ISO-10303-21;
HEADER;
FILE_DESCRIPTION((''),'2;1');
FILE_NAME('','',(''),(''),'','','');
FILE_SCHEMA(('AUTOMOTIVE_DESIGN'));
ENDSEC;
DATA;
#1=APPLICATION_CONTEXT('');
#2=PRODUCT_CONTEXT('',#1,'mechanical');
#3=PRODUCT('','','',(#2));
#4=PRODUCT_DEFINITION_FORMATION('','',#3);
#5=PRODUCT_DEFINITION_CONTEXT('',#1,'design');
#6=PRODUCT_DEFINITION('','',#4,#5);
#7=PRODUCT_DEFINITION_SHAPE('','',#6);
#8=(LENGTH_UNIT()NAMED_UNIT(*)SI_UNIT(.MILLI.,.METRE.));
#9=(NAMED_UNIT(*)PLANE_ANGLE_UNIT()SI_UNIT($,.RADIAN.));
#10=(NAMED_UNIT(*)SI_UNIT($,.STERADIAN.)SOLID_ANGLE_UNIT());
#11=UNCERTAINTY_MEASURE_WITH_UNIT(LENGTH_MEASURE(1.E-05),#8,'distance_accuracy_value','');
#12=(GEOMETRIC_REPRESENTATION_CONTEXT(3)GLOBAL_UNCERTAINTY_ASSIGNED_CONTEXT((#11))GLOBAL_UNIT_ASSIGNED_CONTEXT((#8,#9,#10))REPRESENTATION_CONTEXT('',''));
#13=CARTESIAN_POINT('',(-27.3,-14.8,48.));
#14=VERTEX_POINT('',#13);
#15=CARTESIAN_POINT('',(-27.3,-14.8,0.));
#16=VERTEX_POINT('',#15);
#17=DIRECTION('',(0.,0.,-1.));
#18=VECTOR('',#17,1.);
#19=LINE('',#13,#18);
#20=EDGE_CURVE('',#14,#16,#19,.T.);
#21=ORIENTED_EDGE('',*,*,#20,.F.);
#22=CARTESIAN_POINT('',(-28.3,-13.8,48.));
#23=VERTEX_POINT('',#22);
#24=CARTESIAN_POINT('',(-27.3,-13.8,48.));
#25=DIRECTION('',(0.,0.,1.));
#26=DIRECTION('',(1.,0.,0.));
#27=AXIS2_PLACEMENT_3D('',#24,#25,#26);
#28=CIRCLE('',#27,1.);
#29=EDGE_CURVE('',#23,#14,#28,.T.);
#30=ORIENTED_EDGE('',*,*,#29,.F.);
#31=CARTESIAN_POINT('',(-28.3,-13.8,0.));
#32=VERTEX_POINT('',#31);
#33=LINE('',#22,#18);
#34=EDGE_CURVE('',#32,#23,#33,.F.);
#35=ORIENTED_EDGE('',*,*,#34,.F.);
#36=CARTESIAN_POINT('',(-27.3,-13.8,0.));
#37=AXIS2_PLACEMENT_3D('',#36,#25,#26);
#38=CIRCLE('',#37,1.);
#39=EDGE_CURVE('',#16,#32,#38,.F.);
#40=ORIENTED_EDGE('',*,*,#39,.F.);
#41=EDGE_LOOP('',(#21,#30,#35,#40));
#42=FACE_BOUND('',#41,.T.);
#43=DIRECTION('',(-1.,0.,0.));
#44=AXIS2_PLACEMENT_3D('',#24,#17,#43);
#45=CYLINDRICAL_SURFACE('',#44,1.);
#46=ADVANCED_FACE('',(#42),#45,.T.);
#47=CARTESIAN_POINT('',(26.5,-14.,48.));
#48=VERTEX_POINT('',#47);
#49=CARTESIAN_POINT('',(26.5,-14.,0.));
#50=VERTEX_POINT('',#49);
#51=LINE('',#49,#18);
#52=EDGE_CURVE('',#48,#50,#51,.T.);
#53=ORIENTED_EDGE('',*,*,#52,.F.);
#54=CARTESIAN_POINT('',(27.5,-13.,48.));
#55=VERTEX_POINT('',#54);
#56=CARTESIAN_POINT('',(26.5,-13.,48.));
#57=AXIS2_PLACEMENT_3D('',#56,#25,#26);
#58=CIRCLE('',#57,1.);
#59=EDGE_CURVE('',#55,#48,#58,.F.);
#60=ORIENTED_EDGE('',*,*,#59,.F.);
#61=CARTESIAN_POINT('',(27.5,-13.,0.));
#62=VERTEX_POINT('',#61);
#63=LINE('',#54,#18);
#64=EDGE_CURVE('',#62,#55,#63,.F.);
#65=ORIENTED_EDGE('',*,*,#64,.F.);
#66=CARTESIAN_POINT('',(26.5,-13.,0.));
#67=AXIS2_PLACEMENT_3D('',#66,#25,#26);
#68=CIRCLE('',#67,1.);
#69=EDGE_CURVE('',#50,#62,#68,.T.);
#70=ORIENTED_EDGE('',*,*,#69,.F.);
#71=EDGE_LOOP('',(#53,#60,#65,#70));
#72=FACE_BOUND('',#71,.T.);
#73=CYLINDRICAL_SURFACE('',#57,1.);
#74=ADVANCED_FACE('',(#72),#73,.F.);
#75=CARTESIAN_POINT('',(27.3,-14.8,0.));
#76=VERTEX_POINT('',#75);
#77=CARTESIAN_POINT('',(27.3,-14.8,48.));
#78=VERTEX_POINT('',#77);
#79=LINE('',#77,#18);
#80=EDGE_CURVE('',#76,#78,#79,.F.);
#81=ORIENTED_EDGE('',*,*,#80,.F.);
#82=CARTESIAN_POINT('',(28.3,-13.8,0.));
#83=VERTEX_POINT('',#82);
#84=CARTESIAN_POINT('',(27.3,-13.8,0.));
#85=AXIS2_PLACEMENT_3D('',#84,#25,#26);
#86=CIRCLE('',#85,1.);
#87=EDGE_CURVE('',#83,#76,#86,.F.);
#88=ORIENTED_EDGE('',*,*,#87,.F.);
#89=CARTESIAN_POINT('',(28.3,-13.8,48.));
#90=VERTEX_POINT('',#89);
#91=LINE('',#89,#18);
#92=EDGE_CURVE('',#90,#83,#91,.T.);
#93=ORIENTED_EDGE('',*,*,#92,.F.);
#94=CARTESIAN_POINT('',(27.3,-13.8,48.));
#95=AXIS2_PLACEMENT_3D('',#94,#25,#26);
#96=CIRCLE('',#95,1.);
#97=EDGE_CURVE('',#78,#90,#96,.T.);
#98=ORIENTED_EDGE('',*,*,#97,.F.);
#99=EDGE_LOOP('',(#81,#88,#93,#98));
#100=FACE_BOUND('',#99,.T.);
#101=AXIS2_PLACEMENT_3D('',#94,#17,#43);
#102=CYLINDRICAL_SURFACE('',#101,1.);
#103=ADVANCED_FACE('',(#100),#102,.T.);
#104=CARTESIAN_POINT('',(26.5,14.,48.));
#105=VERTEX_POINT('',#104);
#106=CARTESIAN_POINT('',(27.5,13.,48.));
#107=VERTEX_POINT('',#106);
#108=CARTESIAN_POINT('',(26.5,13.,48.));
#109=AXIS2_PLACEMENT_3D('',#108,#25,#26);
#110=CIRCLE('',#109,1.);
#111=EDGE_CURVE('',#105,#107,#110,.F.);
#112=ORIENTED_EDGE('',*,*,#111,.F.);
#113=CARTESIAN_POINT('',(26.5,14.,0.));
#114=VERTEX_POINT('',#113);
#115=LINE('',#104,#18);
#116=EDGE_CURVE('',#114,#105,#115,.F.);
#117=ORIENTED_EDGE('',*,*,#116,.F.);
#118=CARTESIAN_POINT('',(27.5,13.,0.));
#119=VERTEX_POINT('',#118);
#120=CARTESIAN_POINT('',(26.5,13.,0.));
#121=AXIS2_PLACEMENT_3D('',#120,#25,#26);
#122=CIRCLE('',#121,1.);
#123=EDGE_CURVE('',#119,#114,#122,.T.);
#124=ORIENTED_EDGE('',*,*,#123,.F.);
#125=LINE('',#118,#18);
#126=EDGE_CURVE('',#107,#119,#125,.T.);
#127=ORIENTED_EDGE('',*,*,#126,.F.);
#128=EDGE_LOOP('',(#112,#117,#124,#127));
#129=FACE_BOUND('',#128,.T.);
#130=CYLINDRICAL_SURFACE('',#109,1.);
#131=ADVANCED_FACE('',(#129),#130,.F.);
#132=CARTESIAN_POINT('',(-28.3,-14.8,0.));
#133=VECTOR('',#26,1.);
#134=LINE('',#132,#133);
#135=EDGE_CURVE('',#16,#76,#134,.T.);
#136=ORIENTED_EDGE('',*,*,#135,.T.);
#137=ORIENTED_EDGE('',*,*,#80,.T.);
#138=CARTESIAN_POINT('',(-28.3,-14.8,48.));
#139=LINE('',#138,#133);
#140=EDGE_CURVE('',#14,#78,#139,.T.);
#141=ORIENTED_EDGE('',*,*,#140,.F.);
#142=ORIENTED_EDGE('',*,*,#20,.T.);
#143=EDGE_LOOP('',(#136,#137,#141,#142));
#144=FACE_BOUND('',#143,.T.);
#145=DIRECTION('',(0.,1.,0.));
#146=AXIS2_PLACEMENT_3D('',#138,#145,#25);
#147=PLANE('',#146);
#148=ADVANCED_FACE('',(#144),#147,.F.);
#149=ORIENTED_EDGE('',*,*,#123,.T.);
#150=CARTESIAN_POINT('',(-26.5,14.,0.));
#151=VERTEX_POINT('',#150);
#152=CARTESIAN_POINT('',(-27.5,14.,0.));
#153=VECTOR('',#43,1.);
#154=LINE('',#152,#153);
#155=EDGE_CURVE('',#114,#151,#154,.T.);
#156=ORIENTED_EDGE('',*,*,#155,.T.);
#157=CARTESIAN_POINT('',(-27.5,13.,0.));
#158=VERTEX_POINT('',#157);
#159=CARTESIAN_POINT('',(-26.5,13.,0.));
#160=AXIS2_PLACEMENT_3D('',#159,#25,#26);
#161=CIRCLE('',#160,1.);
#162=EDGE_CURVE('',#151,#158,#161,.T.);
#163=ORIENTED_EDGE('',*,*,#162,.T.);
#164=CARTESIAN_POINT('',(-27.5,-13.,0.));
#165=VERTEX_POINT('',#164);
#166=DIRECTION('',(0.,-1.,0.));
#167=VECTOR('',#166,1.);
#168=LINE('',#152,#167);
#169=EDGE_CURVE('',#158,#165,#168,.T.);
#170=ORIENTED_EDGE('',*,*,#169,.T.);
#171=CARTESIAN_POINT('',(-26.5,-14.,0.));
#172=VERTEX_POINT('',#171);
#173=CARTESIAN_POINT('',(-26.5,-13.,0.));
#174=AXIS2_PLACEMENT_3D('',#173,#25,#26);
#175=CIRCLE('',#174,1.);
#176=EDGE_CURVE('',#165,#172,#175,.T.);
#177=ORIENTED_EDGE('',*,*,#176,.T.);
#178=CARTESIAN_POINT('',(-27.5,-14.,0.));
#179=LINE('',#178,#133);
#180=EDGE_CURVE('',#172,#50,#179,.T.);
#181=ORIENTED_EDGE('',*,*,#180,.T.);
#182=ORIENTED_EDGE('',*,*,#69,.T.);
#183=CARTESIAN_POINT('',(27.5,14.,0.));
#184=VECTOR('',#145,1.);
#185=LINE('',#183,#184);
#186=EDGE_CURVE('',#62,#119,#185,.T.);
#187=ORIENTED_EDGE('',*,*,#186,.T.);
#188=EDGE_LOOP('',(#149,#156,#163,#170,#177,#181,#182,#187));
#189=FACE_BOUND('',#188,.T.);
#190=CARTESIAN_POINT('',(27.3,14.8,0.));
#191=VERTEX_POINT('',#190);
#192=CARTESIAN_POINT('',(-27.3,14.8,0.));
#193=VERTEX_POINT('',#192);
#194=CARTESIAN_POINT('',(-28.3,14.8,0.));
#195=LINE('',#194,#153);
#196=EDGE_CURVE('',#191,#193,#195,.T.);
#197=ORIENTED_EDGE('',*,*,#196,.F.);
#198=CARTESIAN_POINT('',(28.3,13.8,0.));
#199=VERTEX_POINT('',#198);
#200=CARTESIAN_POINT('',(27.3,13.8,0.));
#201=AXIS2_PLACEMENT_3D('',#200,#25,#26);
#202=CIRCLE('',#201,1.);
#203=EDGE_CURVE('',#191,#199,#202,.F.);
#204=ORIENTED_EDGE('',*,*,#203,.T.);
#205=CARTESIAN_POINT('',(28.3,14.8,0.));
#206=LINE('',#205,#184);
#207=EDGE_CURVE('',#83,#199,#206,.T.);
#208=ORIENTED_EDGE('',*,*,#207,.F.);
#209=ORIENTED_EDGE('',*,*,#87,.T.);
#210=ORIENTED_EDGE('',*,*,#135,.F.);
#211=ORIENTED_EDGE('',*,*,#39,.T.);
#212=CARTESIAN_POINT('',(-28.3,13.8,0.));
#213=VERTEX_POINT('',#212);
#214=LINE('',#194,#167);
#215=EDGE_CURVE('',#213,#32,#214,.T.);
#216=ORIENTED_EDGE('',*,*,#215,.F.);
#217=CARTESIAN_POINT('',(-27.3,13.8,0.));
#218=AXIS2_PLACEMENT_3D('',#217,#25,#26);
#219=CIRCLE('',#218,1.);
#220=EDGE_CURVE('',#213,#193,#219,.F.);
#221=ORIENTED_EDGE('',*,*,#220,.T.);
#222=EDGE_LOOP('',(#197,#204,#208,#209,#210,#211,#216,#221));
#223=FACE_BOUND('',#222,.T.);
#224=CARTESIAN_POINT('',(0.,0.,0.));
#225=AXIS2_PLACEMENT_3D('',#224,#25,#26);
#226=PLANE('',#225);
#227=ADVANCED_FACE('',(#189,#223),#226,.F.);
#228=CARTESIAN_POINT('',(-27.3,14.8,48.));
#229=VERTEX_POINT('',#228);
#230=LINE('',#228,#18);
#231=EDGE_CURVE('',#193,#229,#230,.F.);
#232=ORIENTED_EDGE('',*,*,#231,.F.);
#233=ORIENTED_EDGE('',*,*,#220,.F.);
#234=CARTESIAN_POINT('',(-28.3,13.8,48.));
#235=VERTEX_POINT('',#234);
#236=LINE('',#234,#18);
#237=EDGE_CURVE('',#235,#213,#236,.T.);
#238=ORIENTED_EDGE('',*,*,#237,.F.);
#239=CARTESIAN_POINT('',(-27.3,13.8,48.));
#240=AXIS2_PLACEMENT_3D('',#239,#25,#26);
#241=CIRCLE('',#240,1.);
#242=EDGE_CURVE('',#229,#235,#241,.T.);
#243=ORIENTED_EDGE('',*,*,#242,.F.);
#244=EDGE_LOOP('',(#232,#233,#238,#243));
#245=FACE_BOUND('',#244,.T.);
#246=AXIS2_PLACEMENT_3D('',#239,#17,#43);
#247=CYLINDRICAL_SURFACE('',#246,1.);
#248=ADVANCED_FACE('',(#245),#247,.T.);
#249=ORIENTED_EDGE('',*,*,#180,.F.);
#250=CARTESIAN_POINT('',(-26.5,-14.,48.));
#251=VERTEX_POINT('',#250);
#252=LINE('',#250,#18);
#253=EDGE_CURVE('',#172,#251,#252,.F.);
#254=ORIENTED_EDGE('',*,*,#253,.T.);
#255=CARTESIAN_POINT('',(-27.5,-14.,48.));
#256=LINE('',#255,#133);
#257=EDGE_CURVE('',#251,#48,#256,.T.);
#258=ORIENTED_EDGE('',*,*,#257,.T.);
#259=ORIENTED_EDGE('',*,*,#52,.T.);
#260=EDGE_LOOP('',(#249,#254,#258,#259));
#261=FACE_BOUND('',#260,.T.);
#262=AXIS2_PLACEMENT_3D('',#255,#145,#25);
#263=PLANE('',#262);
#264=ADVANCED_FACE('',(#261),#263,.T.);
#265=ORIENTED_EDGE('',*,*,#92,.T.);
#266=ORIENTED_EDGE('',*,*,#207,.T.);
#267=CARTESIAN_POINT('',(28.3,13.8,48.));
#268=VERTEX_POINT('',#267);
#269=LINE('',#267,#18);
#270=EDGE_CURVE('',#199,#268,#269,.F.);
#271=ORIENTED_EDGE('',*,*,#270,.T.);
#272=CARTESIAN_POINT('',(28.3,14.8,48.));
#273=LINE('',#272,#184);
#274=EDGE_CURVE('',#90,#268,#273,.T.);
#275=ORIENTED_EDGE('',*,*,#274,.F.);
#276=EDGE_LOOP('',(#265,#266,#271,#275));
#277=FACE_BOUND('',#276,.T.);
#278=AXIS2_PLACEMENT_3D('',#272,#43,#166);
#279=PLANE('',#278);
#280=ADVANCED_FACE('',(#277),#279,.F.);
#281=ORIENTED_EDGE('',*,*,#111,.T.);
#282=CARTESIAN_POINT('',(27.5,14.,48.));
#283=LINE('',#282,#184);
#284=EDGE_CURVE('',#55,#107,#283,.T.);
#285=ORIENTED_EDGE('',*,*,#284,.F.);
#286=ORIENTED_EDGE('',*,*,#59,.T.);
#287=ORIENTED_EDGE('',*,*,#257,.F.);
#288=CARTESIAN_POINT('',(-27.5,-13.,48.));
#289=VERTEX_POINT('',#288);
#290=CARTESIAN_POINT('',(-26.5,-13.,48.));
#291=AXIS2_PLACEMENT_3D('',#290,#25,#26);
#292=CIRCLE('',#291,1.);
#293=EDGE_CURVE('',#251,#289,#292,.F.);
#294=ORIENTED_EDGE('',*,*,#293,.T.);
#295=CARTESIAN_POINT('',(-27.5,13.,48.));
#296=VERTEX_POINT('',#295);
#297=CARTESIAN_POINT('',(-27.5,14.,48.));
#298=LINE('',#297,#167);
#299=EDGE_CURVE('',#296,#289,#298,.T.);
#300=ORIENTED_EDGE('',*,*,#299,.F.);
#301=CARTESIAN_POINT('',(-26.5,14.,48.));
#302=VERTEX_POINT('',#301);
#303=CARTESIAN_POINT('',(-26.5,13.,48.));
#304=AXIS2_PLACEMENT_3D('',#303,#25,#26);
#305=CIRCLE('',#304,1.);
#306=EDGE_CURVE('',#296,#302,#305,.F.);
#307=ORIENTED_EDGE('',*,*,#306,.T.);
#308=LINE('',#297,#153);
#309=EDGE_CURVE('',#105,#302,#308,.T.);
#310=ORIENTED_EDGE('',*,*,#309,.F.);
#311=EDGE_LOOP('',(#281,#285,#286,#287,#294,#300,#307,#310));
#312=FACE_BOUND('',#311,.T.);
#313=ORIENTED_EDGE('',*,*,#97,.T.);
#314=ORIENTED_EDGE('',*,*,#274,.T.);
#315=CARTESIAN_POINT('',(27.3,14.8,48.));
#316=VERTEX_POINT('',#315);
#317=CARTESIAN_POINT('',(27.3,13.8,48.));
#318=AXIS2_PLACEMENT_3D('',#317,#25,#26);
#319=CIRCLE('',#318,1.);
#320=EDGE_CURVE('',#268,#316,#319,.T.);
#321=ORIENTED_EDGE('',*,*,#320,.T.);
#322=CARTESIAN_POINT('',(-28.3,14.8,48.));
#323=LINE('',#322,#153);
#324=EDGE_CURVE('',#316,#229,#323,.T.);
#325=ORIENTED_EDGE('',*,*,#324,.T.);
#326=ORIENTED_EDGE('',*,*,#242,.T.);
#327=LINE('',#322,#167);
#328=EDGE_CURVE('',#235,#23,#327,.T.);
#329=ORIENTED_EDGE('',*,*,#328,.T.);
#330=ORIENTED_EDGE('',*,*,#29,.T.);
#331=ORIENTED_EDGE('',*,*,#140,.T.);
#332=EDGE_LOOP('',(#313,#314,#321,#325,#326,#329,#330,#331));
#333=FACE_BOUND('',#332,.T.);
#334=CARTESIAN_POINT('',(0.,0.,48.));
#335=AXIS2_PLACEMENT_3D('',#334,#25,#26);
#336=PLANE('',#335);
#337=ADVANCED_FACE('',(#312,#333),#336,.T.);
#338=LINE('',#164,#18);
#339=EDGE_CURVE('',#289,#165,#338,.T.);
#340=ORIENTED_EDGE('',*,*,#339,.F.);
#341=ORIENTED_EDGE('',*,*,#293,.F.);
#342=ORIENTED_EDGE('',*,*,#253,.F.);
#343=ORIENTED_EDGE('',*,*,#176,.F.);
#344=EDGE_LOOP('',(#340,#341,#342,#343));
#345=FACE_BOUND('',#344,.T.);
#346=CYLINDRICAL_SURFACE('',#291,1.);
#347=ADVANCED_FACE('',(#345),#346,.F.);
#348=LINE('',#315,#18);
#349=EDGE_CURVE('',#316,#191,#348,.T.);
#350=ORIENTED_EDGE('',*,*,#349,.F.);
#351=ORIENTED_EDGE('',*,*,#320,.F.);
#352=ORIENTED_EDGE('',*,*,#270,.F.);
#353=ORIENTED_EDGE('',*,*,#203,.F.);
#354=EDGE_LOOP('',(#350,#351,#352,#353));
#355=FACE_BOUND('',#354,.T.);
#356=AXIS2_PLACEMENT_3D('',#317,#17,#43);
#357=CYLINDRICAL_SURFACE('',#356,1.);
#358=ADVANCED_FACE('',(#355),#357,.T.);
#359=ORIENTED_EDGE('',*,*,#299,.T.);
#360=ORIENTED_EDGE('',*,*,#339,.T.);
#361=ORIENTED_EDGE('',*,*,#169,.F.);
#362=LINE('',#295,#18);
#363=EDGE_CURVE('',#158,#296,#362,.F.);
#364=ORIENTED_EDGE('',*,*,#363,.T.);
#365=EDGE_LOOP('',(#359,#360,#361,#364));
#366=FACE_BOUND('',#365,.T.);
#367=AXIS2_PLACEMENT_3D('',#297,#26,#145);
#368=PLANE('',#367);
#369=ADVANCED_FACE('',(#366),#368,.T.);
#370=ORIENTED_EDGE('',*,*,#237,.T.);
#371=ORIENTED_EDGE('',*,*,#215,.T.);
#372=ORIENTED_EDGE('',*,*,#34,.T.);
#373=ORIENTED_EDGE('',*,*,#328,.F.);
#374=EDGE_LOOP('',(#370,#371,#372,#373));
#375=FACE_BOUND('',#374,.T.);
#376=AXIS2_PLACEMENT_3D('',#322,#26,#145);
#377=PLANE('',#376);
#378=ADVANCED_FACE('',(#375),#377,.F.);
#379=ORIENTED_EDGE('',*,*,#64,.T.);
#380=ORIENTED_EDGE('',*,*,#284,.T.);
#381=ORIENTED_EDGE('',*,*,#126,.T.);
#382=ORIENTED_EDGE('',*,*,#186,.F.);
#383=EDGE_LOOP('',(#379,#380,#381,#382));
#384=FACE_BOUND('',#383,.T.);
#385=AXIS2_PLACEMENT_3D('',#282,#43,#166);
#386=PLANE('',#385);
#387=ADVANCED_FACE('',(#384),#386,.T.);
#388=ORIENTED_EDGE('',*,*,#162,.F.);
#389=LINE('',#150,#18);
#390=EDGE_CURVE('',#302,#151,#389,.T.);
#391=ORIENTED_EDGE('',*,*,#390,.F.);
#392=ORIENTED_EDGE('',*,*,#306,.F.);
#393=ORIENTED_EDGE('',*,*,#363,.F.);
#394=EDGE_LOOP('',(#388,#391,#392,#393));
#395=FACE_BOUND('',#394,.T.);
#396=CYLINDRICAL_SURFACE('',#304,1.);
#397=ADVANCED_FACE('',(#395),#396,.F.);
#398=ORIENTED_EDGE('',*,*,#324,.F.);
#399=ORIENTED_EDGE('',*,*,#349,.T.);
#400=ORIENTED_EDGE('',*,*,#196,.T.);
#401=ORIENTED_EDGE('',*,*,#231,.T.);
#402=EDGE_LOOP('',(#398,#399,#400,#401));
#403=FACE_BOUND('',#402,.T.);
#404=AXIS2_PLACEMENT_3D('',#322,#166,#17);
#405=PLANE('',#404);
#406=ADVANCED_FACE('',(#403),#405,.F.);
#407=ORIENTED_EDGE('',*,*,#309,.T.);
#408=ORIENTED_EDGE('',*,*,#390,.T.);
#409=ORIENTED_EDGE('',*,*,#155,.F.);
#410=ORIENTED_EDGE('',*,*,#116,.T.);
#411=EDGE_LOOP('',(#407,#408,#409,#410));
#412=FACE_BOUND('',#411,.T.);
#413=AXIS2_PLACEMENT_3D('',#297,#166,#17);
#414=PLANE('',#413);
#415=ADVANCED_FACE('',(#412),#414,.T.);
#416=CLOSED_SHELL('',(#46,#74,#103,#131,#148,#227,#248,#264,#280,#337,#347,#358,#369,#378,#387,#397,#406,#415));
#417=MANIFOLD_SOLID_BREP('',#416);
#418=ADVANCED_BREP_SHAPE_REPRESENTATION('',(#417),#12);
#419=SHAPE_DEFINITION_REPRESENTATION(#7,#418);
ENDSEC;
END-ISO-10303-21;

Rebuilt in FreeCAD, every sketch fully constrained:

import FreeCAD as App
import Part
import Sketcher

V = App.Vector
Q = App.Units.Quantity


def edges_at(feature, points):
    """Names of the edges that pass closest to the given points."""
    edges = feature.Shape.Edges
    near = lambda p: min(range(len(edges)), key=lambda i: edges[i].distToShape(Part.Vertex(*p))[0])
    return sorted({f"Edge{near(p) + 1}" for p in points})


def add_polygon(sketch, points):
    """Adds a closed chain of lines whose ends are joined by coincident constraints."""
    first, n = sketch.GeometryCount, len(points)
    for a, b in zip(points, points[1:] + points[:1]):
        sketch.addGeometry(Part.LineSegment(App.Vector(*a, 0), App.Vector(*b, 0)), False)
    for i in range(n):
        sketch.addConstraint(Sketcher.Constraint("Coincident", first + i, 2, first + (i + 1) % n, 1))

doc = App.newDocument("Part")
params = doc.addObject("Spreadsheet::Sheet", "Params")
for row, (alias, value) in enumerate([
    ("sketch1_width", "55 mm"),
    ("sketch1_height", "28 mm"),
    ("sketch1_width2", "56.6 mm"),
    ("sketch1_height2", "29.6 mm"),
    ("pad1_length", "48 mm"),
    ("fillet_radius", "1 mm"),
], start=1):
    params.set(f"A{row}", alias)
    params.set(f"B{row}", "=" + value)
    params.setAlias(f"B{row}", alias)

body = doc.addObject("PartDesign::Body", "Body")

# Sketch on XY plane
sketch1 = body.newObject("Sketcher::SketchObject", "Sketch")
sketch1.AttachmentSupport = (doc.getObject("XY_Plane"), [""])
sketch1.MapMode = "FlatFace"
add_polygon(sketch1, [(-28.3, 14.8), (-28.3, -14.8), (28.3, -14.8), (28.3, 14.8)])  # lines 0-3
add_polygon(sketch1, [(27.5, -14), (-27.5, -14), (-27.5, 14), (27.5, 14)])  # lines 4-7
sketch1.addConstraint([
    Sketcher.Constraint("Vertical", 0),
    Sketcher.Constraint("Horizontal", 1),
    Sketcher.Constraint("Vertical", 2),
    Sketcher.Constraint("Horizontal", 3),
    Sketcher.Constraint("Horizontal", 4),
    Sketcher.Constraint("Vertical", 5),
    Sketcher.Constraint("Horizontal", 6),
    Sketcher.Constraint("Vertical", 7),
    Sketcher.Constraint("Symmetric", 0, 2, 2, 2, -1, 1),
    Sketcher.Constraint("Symmetric", 4, 2, 6, 2, -1, 1),
    Sketcher.Constraint("DistanceX", 4, 2, 4, 1, Q("55 mm")),
    Sketcher.Constraint("DistanceY", 5, 1, 5, 2, Q("28 mm")),
    Sketcher.Constraint("DistanceX", 1, 1, 1, 2, Q("56.6 mm")),
    Sketcher.Constraint("DistanceY", 0, 2, 0, 1, Q("29.6 mm")),
])
sketch1.setExpression("Constraints[18]", "Params.sketch1_width")
sketch1.setExpression("Constraints[19]", "Params.sketch1_height")
sketch1.setExpression("Constraints[20]", "Params.sketch1_width2")
sketch1.setExpression("Constraints[21]", "Params.sketch1_height2")
pad1 = body.newObject("PartDesign::Pad", "Pad")
pad1.Profile = sketch1
pad1.setExpression("Length", "Params.pad1_length")
doc.recompute()

fillet = body.newObject("PartDesign::Fillet", "Fillet")
fillet.Base = (pad1, edges_at(pad1, [
    (27.5, -14, 24),
    (27.5, 14, 24),
    (-27.5, 14, 24),
    (-27.5, -14, 24),
    (-28.3, 14.8, 24),
    (28.3, 14.8, 24),
    (28.3, -14.8, 24),
    (-28.3, -14.8, 24),
]))
fillet.setExpression("Radius", "Params.fillet_radius")

doc.recompute()
